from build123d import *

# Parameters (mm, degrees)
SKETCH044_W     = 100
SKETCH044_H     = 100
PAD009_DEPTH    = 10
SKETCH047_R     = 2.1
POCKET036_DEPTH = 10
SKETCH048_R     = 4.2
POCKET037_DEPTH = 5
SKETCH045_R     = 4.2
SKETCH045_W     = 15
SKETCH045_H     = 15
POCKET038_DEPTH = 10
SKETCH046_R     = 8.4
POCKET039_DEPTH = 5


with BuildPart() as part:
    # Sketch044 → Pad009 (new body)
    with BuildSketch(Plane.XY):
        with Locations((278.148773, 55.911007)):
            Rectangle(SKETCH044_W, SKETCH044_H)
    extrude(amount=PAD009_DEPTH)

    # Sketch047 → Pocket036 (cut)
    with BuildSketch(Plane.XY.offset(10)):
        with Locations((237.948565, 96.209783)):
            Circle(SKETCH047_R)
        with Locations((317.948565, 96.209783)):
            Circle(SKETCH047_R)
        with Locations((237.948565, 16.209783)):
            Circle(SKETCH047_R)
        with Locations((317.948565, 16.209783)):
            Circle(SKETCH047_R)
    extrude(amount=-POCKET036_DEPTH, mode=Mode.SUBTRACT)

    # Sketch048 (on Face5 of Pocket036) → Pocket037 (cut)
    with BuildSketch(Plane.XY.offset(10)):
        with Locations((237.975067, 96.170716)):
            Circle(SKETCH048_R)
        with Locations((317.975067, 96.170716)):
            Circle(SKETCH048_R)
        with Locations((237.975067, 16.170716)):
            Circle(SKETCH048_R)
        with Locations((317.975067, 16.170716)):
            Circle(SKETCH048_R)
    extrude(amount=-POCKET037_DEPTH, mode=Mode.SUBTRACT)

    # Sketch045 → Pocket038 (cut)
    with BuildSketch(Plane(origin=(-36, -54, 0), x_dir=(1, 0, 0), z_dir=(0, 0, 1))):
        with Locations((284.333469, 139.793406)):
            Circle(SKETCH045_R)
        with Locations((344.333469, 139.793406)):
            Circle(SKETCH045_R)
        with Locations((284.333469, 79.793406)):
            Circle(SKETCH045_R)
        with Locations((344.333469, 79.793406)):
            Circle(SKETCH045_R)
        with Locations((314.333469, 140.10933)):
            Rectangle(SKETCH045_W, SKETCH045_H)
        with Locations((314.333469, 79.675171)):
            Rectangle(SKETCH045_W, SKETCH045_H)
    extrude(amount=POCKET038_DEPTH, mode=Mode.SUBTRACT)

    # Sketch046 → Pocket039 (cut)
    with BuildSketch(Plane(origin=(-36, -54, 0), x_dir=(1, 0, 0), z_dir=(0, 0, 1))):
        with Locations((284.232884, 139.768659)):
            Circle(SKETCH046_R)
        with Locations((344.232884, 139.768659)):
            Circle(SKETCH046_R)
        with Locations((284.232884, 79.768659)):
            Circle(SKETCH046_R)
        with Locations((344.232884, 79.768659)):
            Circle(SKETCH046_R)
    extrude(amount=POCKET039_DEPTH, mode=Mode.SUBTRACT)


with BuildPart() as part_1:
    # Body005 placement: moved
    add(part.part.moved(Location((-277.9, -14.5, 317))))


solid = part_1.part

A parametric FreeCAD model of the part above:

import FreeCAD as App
import Part
import Sketcher

V = App.Vector
Q = App.Units.Quantity

doc = App.newDocument("Part")
body = doc.addObject("PartDesign::Body", "Body")

# Sketch on XY plane
sketch1 = body.newObject("Sketcher::SketchObject", "Sketch")
sketch1.AttachmentSupport = (doc.getObject("XY_Plane"), [""])
sketch1.MapMode = "FlatFace"
sketch1.addGeometry([
    Part.LineSegment(V(228.148773, 105.911007, 0), V(228.148773, 5.911007, 0)),
    Part.LineSegment(V(228.148773, 5.911007, 0), V(328.148773, 5.911007, 0)),
    Part.LineSegment(V(328.148773, 5.911007, 0), V(328.148773, 105.911007, 0)),
    Part.LineSegment(V(328.148773, 105.911007, 0), V(228.148773, 105.911007, 0)),
], False)
sketch1.addConstraint([
    Sketcher.Constraint("Coincident", 0, 2, 1, 1),
    Sketcher.Constraint("Coincident", 1, 2, 2, 1),
    Sketcher.Constraint("Coincident", 2, 2, 3, 1),
    Sketcher.Constraint("Coincident", 3, 2, 0, 1),
    Sketcher.Constraint("Vertical", 0),
    Sketcher.Constraint("Horizontal", 1),
    Sketcher.Constraint("Vertical", 2),
    Sketcher.Constraint("Horizontal", 3),
    Sketcher.Constraint("Equal", 3, 0),
    Sketcher.Constraint("DistanceX", 1, 1, 1, 2, Q("100 mm")),
    Sketcher.Constraint("DistanceX", -1, 1, 0, 2, Q("228.148773 mm")),
    Sketcher.Constraint("DistanceY", -1, 1, 0, 2, Q("5.911007 mm")),
])
pad1 = body.newObject("PartDesign::Pad", "Pad")
pad1.Profile = sketch1
pad1.Length = 10

# Sketch on XY plane
sketch2 = body.newObject("Sketcher::SketchObject", "Sketch001")
sketch2.AttachmentSupport = (doc.getObject("XY_Plane"), [""])
sketch2.MapMode = "FlatFace"
sketch2.AttachmentOffset = App.Placement(V(0, 0, 10), App.Rotation())
sketch2.addGeometry([
    Part.Circle(V(237.948565, 96.209783, 0), V(0, 0, 1), 2.1),
    Part.Circle(V(317.948565, 96.209783, 0), V(0, 0, 1), 2.1),
    Part.Circle(V(237.948565, 16.209783, 0), V(0, 0, 1), 2.1),
    Part.Circle(V(317.948565, 16.209783, 0), V(0, 0, 1), 2.1),
], False)
sketch2.addConstraint([
    Sketcher.Constraint("Equal", 0, 1),
    Sketcher.Constraint("Equal", 1, 2),
    Sketcher.Constraint("Equal", 2, 3),
    Sketcher.Constraint("Horizontal", 0, 3, 1, 3),
    Sketcher.Constraint("Horizontal", 2, 3, 3, 3),
    Sketcher.Constraint("Vertical", 0, 3, 2, 3),
    Sketcher.Constraint("Vertical", 1, 3, 3, 3),
    Sketcher.Constraint("Diameter", 0, Q("4.2 mm")),
    Sketcher.Constraint("DistanceX", 0, 3, 1, 3, Q("80 mm")),
    Sketcher.Constraint("DistanceY", 2, 3, 0, 3, Q("80 mm")),
    Sketcher.Constraint("DistanceX", -1, 1, 0, 3, Q("237.948565 mm")),
    Sketcher.Constraint("DistanceY", -1, 1, 0, 3, Q("96.209783 mm")),
])
pocket1 = body.newObject("PartDesign::Pocket", "Pocket")
pocket1.Profile = sketch2
pocket1.Length = 10

# Sketch on XY plane
sketch3 = body.newObject("Sketcher::SketchObject", "Sketch002")
sketch3.AttachmentSupport = (doc.getObject("XY_Plane"), [""])
sketch3.MapMode = "FlatFace"
sketch3.AttachmentOffset = App.Placement(V(0, 0, 10), App.Rotation())
sketch3.addGeometry([
    Part.Circle(V(237.975067, 96.170716, 0), V(0, 0, 1), 4.2),
    Part.Circle(V(317.975067, 96.170716, 0), V(0, 0, 1), 4.2),
    Part.Circle(V(237.975067, 16.170716, 0), V(0, 0, 1), 4.2),
    Part.Circle(V(317.975067, 16.170716, 0), V(0, 0, 1), 4.2),
], False)
sketch3.addConstraint([
    Sketcher.Constraint("Equal", 0, 1),
    Sketcher.Constraint("Equal", 1, 2),
    Sketcher.Constraint("Equal", 2, 3),
    Sketcher.Constraint("Horizontal", 0, 3, 1, 3),
    Sketcher.Constraint("Horizontal", 2, 3, 3, 3),
    Sketcher.Constraint("Vertical", 0, 3, 2, 3),
    Sketcher.Constraint("Vertical", 1, 3, 3, 3),
    Sketcher.Constraint("Diameter", 0, Q("8.4 mm")),
    Sketcher.Constraint("DistanceX", 0, 3, 1, 3, Q("80 mm")),
    Sketcher.Constraint("DistanceY", 2, 3, 0, 3, Q("80 mm")),
    Sketcher.Constraint("DistanceX", -1, 1, 0, 3, Q("237.975067 mm")),
    Sketcher.Constraint("DistanceY", -1, 1, 0, 3, Q("96.170716 mm")),
])
pocket2 = body.newObject("PartDesign::Pocket", "Pocket001")
pocket2.Profile = sketch3
pocket2.Length = 5

# Sketch on XY plane
sketch4 = body.newObject("Sketcher::SketchObject", "Sketch003")
sketch4.AttachmentSupport = (doc.getObject("XY_Plane"), [""])
sketch4.MapMode = "FlatFace"
sketch4.addGeometry([
    Part.Circle(V(248.333469, 85.793406, 0), V(0, 0, 1), 4.2),  # 0
    Part.Circle(V(308.333469, 85.793406, 0), V(0, 0, 1), 4.2),  # 1
    Part.Circle(V(248.333469, 25.793406, 0), V(0, 0, 1), 4.2),  # 2
    Part.Circle(V(308.333469, 25.793406, 0), V(0, 0, 1), 4.2),  # 3
    Part.LineSegment(V(270.833469, 93.60933, 0), V(270.833469, 78.60933, 0)),  # 4
    Part.LineSegment(V(270.833469, 78.60933, 0), V(285.833469, 78.60933, 0)),  # 5
    Part.LineSegment(V(285.833469, 78.60933, 0), V(285.833469, 93.60933, 0)),  # 6
    Part.LineSegment(V(285.833469, 93.60933, 0), V(270.833469, 93.60933, 0)),  # 7
    Part.LineSegment(V(270.833469, 33.175171, 0), V(270.833469, 18.175171, 0)),  # 8
    Part.LineSegment(V(270.833469, 18.175171, 0), V(285.833469, 18.175171, 0)),  # 9
    Part.LineSegment(V(285.833469, 18.175171, 0), V(285.833469, 33.175171, 0)),  # 10
    Part.LineSegment(V(285.833469, 33.175171, 0), V(270.833469, 33.175171, 0)),  # 11
], False)
sketch4.addConstraint([
    Sketcher.Constraint("Coincident", 4, 2, 5, 1),
    Sketcher.Constraint("Coincident", 5, 2, 6, 1),
    Sketcher.Constraint("Coincident", 6, 2, 7, 1),
    Sketcher.Constraint("Coincident", 7, 2, 4, 1),
    Sketcher.Constraint("Coincident", 8, 2, 9, 1),
    Sketcher.Constraint("Coincident", 9, 2, 10, 1),
    Sketcher.Constraint("Coincident", 10, 2, 11, 1),
    Sketcher.Constraint("Coincident", 11, 2, 8, 1),
    Sketcher.Constraint("Vertical", 4),
    Sketcher.Constraint("Horizontal", 5),
    Sketcher.Constraint("Vertical", 6),
    Sketcher.Constraint("Horizontal", 7),
    Sketcher.Constraint("Vertical", 8),
    Sketcher.Constraint("Horizontal", 9),
    Sketcher.Constraint("Vertical", 10),
    Sketcher.Constraint("Horizontal", 11),
    Sketcher.Constraint("Equal", 0, 1),
    Sketcher.Constraint("Equal", 1, 2),
    Sketcher.Constraint("Equal", 2, 3),
    Sketcher.Constraint("Horizontal", 0, 3, 1, 3),
    Sketcher.Constraint("Horizontal", 2, 3, 3, 3),
    Sketcher.Constraint("Vertical", 0, 3, 2, 3),
    Sketcher.Constraint("Vertical", 1, 3, 3, 3),
    Sketcher.Constraint("Vertical", 7, 2, 8, 2),
    Sketcher.Constraint("Vertical", 6, 2, 9, 2),
    Sketcher.Constraint("Equal", 11, 4),
    Sketcher.Constraint("Equal", 6, 8),
    Sketcher.Constraint("Diameter", 0, Q("8.4 mm")),
    Sketcher.Constraint("DistanceX", 5, 1, 5, 2, Q("15 mm")),
    Sketcher.Constraint("DistanceX", 0, 3, 1, 3, Q("60 mm")),
    Sketcher.Constraint("DistanceY", 2, 3, 0, 3, Q("60 mm")),
    Sketcher.Constraint("DistanceX", 0, 3, 4, 2, Q("22.5 mm")),
    Sketcher.Constraint("DistanceX", -1, 1, 0, 3, Q("248.333469 mm")),
    Sketcher.Constraint("DistanceY", -1, 1, 4, 2, Q("78.60933 mm")),
    Sketcher.Constraint("DistanceY", -1, 1, 8, 2, Q("18.175171 mm")),
    Sketcher.Constraint("DistanceY", -1, 1, 0, 3, Q("85.793406 mm")),
])
pocket3 = body.newObject("PartDesign::Pocket", "Pocket002")
pocket3.Profile = sketch4
pocket3.Length = 10
pocket3.Reversed = True

# Sketch on XY plane
sketch5 = body.newObject("Sketcher::SketchObject", "Sketch004")
sketch5.AttachmentSupport = (doc.getObject("XY_Plane"), [""])
sketch5.MapMode = "FlatFace"
sketch5.addGeometry([
    Part.Circle(V(248.232884, 85.768659, 0), V(0, 0, 1), 8.4),
    Part.Circle(V(308.232884, 85.768659, 0), V(0, 0, 1), 8.4),
    Part.Circle(V(248.232884, 25.768659, 0), V(0, 0, 1), 8.4),
    Part.Circle(V(308.232884, 25.768659, 0), V(0, 0, 1), 8.4),
], False)
sketch5.addConstraint([
    Sketcher.Constraint("Equal", 0, 1),
    Sketcher.Constraint("Equal", 1, 2),
    Sketcher.Constraint("Equal", 2, 3),
    Sketcher.Constraint("Horizontal", 0, 3, 1, 3),
    Sketcher.Constraint("Horizontal", 2, 3, 3, 3),
    Sketcher.Constraint("Vertical", 0, 3, 2, 3),
    Sketcher.Constraint("Vertical", 1, 3, 3, 3),
    Sketcher.Constraint("Diameter", 0, Q("16.8 mm")),
    Sketcher.Constraint("DistanceX", 0, 3, 1, 3, Q("60 mm")),
    Sketcher.Constraint("DistanceY", 2, 3, 0, 3, Q("60 mm")),
    Sketcher.Constraint("DistanceY", -1, 1, 0, 3, Q("85.768659 mm")),
    Sketcher.Constraint("DistanceX", -1, 1, 0, 3, Q("248.232884 mm")),
])
pocket4 = body.newObject("PartDesign::Pocket", "Pocket003")
pocket4.Profile = sketch5
pocket4.Length = 5
pocket4.Reversed = True
body2 = doc.addObject("PartDesign::Body", "Body001")
doc.recompute()

body.Placement = App.Placement(V(-277.9, -14.5, 317), App.Rotation(V(0, 0, 1), 0))
boolean = body2.newObject("PartDesign::Boolean", "Boolean")
boolean.Type = "Fuse"
boolean.addObjects([body])

doc.recompute()
